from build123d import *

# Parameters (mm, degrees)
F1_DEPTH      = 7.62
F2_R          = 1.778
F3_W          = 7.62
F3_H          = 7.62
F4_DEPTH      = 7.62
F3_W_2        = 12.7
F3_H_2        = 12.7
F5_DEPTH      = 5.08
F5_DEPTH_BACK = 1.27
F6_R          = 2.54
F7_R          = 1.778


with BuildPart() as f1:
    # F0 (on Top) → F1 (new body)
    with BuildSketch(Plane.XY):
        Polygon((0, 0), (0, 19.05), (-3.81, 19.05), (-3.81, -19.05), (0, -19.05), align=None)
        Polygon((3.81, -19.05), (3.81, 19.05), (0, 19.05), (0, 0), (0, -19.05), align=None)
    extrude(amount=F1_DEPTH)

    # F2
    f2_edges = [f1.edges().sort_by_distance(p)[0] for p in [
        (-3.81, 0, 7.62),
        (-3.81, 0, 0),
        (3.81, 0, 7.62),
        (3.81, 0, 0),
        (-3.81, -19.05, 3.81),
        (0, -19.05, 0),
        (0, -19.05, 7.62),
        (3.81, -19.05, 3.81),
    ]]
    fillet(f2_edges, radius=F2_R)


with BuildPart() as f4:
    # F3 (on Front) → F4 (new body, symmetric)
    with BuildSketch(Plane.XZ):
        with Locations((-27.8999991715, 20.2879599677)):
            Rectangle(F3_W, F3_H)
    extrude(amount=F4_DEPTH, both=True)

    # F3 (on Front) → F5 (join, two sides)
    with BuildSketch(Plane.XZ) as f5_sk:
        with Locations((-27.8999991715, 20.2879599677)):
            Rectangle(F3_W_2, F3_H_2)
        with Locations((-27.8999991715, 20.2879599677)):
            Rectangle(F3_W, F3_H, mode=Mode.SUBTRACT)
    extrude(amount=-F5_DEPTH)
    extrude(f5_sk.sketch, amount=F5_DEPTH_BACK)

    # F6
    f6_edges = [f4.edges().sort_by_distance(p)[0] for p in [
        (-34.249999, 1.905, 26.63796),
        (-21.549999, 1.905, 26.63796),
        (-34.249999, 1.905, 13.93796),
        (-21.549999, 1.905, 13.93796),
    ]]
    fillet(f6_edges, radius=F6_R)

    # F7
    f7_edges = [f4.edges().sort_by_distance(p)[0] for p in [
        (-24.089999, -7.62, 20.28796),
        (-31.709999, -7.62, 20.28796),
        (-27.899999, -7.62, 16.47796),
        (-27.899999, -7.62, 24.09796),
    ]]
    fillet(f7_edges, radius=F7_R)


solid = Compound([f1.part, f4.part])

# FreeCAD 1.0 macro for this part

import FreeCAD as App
import Part
import Sketcher
from FreeCAD import Vector
Q = App.Units.Quantity


def edges_at(feature, points):
    """Names of the edges that pass closest to the given points."""
    edges = feature.Shape.Edges
    near = lambda p: min(range(len(edges)), key=lambda i: edges[i].distToShape(Part.Vertex(*p))[0])
    return sorted({f"Edge{near(p) + 1}" for p in points})

doc = App.newDocument("Part")
body = doc.addObject("PartDesign::Body", "Body")

sketch1 = body.newObject("Sketcher::SketchObject", "Sketch")
sketch1.AttachmentSupport = (doc.getObject("XY_Plane"), [""])
sketch1.MapMode = "FlatFace"
sketch1.addGeometry(Part.LineSegment(Vector(-4, 19, 0), Vector(-4, -19, 0)), False)
sketch1.addGeometry(Part.LineSegment(Vector(-4, -19, 0), Vector(4, -19, 0)), False)
sketch1.addGeometry(Part.LineSegment(Vector(4, -19, 0), Vector(4, 19, 0)), False)
sketch1.addGeometry(Part.LineSegment(Vector(4, 19, 0), Vector(-4, 19, 0)), False)
sketch1.addConstraint(Sketcher.Constraint("Coincident", 0, 2, 1, 1))
sketch1.addConstraint(Sketcher.Constraint("Coincident", 1, 2, 2, 1))
sketch1.addConstraint(Sketcher.Constraint("Coincident", 2, 2, 3, 1))
sketch1.addConstraint(Sketcher.Constraint("Coincident", 3, 2, 0, 1))
sketch1.addConstraint(Sketcher.Constraint("Vertical", 0))
sketch1.addConstraint(Sketcher.Constraint("Horizontal", 1))
sketch1.addConstraint(Sketcher.Constraint("Vertical", 2))
sketch1.addConstraint(Sketcher.Constraint("Horizontal", 3))
sketch1.addConstraint(Sketcher.Constraint("Symmetric", 0, 2, 2, 2, -1, 1))
sketch1.addConstraint(Sketcher.Constraint("DistanceX", 1, 1, 1, 2, Q("0.3 in")))
sketch1.addConstraint(Sketcher.Constraint("DistanceY", 0, 2, 0, 1, Q("1.5 in")))
pad1 = body.newObject("PartDesign::Pad", "Pad")
pad1.Profile = sketch1
pad1.Length = Q("0.3 in")
doc.recompute()

fillet = body.newObject("PartDesign::Fillet", "Fillet")
fillet.Base = (pad1, edges_at(pad1, [
    (-3.81, 0, 7.62),
    (-3.81, 0, 0),
    (3.81, 0, 7.62),
    (3.81, 0, 0),
    (-3.81, -19.05, 3.81),
    (0, -19.05, 0),
    (0, -19.05, 7.62),
    (3.81, -19.05, 3.81),
]))
fillet.Radius = Q("0.07 in")
body2 = doc.addObject("PartDesign::Body", "Body001")

sketch2 = body2.newObject("Sketcher::SketchObject", "Sketch001")
sketch2.AttachmentSupport = (doc.getObject("XZ_Plane001"), [""])
sketch2.MapMode = "FlatFace"
sketch2.addGeometry(Part.LineSegment(Vector(-32, 24, 0), Vector(-32, 16, 0)), False)
sketch2.addGeometry(Part.LineSegment(Vector(-32, 16, 0), Vector(-24, 16, 0)), False)
sketch2.addGeometry(Part.LineSegment(Vector(-24, 16, 0), Vector(-24, 24, 0)), False)
sketch2.addGeometry(Part.LineSegment(Vector(-24, 24, 0), Vector(-32, 24, 0)), False)
sketch2.addConstraint(Sketcher.Constraint("Coincident", 0, 2, 1, 1))
sketch2.addConstraint(Sketcher.Constraint("Coincident", 1, 2, 2, 1))
sketch2.addConstraint(Sketcher.Constraint("Coincident", 2, 2, 3, 1))
sketch2.addConstraint(Sketcher.Constraint("Coincident", 3, 2, 0, 1))
sketch2.addConstraint(Sketcher.Constraint("Vertical", 0))
sketch2.addConstraint(Sketcher.Constraint("Horizontal", 1))
sketch2.addConstraint(Sketcher.Constraint("Vertical", 2))
sketch2.addConstraint(Sketcher.Constraint("Horizontal", 3))
sketch2.addConstraint(Sketcher.Constraint("Equal", 3, 0))
sketch2.addConstraint(Sketcher.Constraint("DistanceX", 1, 1, 1, 2, Q("0.3 in")))
sketch2.addConstraint(Sketcher.Constraint("DistanceX", 0, 2, -1, 1, Q("31.709999 mm")))
sketch2.addConstraint(Sketcher.Constraint("DistanceY", -1, 1, 0, 2, Q("16.47796 mm")))
pad2 = body2.newObject("PartDesign::Pad", "Pad001")
pad2.Profile = sketch2
pad2.Length = Q("0.6 in")
pad2.Midplane = True

sketch3 = body2.newObject("Sketcher::SketchObject", "Sketch002")
sketch3.AttachmentSupport = (doc.getObject("XZ_Plane001"), [""])
sketch3.MapMode = "FlatFace"
sketch3.addGeometry(Part.LineSegment(Vector(-34, 27, 0), Vector(-34, 14, 0)), False)
sketch3.addGeometry(Part.LineSegment(Vector(-34, 14, 0), Vector(-22, 14, 0)), False)
sketch3.addGeometry(Part.LineSegment(Vector(-22, 14, 0), Vector(-22, 27, 0)), False)
sketch3.addGeometry(Part.LineSegment(Vector(-22, 27, 0), Vector(-34, 27, 0)), False)
sketch3.addGeometry(Part.LineSegment(Vector(-24, 16, 0), Vector(-32, 16, 0)), False)
sketch3.addGeometry(Part.LineSegment(Vector(-32, 16, 0), Vector(-32, 24, 0)), False)
sketch3.addGeometry(Part.LineSegment(Vector(-32, 24, 0), Vector(-24, 24, 0)), False)
sketch3.addGeometry(Part.LineSegment(Vector(-24, 24, 0), Vector(-24, 16, 0)), False)
sketch3.addConstraint(Sketcher.Constraint("Coincident", 0, 2, 1, 1))
sketch3.addConstraint(Sketcher.Constraint("Coincident", 1, 2, 2, 1))
sketch3.addConstraint(Sketcher.Constraint("Coincident", 2, 2, 3, 1))
sketch3.addConstraint(Sketcher.Constraint("Coincident", 3, 2, 0, 1))
sketch3.addConstraint(Sketcher.Constraint("Coincident", 4, 2, 5, 1))
sketch3.addConstraint(Sketcher.Constraint("Coincident", 5, 2, 6, 1))
sketch3.addConstraint(Sketcher.Constraint("Coincident", 6, 2, 7, 1))
sketch3.addConstraint(Sketcher.Constraint("Coincident", 7, 2, 4, 1))
sketch3.addConstraint(Sketcher.Constraint("Vertical", 0))
sketch3.addConstraint(Sketcher.Constraint("Horizontal", 1))
sketch3.addConstraint(Sketcher.Constraint("Vertical", 2))
sketch3.addConstraint(Sketcher.Constraint("Horizontal", 3))
sketch3.addConstraint(Sketcher.Constraint("Horizontal", 4))
sketch3.addConstraint(Sketcher.Constraint("Vertical", 5))
sketch3.addConstraint(Sketcher.Constraint("Horizontal", 6))
sketch3.addConstraint(Sketcher.Constraint("Vertical", 7))
sketch3.addConstraint(Sketcher.Constraint("Equal", 3, 0))
sketch3.addConstraint(Sketcher.Constraint("Equal", 6, 5))
sketch3.addConstraint(Sketcher.Constraint("DistanceX", 1, 1, 1, 2, Q("0.5 in")))
sketch3.addConstraint(Sketcher.Constraint("DistanceX", 4, 2, 4, 1, Q("0.3 in")))
sketch3.addConstraint(Sketcher.Constraint("DistanceX", 0, 2, 4, 2, Q("0.1 in")))
sketch3.addConstraint(Sketcher.Constraint("DistanceY", 0, 2, 4, 2, Q("0.1 in")))
sketch3.addConstraint(Sketcher.Constraint("DistanceX", 0, 2, -1, 1, Q("34.249999 mm")))
sketch3.addConstraint(Sketcher.Constraint("DistanceY", -1, 1, 0, 2, Q("13.93796 mm")))
pad3 = body2.newObject("PartDesign::Pad", "Pad002")
pad3.Profile = sketch3
pad3.Type = "TwoLengths"
pad3.Length = Q("0.2 in")
pad3.Length2 = Q("0.05 in")
pad3.Reversed = True
doc.recompute()

fillet2 = body2.newObject("PartDesign::Fillet", "Fillet001")
fillet2.Base = (pad3, edges_at(pad3, [
    (-34.25, 1.905, 26.638),
    (-21.55, 1.905, 26.638),
    (-34.25, 1.905, 13.938),
    (-21.55, 1.905, 13.938),
]))
fillet2.Radius = Q("0.1 in")
doc.recompute()

fillet3 = body2.newObject("PartDesign::Fillet", "Fillet002")
fillet3.Base = (fillet2, edges_at(fillet2, [
    (-24.09, -7.62, 20.288),
    (-31.71, -7.62, 20.288),
    (-27.9, -7.62, 16.478),
    (-27.9, -7.62, 24.098),
]))
fillet3.Radius = Q("0.07 in")

doc.recompute()
